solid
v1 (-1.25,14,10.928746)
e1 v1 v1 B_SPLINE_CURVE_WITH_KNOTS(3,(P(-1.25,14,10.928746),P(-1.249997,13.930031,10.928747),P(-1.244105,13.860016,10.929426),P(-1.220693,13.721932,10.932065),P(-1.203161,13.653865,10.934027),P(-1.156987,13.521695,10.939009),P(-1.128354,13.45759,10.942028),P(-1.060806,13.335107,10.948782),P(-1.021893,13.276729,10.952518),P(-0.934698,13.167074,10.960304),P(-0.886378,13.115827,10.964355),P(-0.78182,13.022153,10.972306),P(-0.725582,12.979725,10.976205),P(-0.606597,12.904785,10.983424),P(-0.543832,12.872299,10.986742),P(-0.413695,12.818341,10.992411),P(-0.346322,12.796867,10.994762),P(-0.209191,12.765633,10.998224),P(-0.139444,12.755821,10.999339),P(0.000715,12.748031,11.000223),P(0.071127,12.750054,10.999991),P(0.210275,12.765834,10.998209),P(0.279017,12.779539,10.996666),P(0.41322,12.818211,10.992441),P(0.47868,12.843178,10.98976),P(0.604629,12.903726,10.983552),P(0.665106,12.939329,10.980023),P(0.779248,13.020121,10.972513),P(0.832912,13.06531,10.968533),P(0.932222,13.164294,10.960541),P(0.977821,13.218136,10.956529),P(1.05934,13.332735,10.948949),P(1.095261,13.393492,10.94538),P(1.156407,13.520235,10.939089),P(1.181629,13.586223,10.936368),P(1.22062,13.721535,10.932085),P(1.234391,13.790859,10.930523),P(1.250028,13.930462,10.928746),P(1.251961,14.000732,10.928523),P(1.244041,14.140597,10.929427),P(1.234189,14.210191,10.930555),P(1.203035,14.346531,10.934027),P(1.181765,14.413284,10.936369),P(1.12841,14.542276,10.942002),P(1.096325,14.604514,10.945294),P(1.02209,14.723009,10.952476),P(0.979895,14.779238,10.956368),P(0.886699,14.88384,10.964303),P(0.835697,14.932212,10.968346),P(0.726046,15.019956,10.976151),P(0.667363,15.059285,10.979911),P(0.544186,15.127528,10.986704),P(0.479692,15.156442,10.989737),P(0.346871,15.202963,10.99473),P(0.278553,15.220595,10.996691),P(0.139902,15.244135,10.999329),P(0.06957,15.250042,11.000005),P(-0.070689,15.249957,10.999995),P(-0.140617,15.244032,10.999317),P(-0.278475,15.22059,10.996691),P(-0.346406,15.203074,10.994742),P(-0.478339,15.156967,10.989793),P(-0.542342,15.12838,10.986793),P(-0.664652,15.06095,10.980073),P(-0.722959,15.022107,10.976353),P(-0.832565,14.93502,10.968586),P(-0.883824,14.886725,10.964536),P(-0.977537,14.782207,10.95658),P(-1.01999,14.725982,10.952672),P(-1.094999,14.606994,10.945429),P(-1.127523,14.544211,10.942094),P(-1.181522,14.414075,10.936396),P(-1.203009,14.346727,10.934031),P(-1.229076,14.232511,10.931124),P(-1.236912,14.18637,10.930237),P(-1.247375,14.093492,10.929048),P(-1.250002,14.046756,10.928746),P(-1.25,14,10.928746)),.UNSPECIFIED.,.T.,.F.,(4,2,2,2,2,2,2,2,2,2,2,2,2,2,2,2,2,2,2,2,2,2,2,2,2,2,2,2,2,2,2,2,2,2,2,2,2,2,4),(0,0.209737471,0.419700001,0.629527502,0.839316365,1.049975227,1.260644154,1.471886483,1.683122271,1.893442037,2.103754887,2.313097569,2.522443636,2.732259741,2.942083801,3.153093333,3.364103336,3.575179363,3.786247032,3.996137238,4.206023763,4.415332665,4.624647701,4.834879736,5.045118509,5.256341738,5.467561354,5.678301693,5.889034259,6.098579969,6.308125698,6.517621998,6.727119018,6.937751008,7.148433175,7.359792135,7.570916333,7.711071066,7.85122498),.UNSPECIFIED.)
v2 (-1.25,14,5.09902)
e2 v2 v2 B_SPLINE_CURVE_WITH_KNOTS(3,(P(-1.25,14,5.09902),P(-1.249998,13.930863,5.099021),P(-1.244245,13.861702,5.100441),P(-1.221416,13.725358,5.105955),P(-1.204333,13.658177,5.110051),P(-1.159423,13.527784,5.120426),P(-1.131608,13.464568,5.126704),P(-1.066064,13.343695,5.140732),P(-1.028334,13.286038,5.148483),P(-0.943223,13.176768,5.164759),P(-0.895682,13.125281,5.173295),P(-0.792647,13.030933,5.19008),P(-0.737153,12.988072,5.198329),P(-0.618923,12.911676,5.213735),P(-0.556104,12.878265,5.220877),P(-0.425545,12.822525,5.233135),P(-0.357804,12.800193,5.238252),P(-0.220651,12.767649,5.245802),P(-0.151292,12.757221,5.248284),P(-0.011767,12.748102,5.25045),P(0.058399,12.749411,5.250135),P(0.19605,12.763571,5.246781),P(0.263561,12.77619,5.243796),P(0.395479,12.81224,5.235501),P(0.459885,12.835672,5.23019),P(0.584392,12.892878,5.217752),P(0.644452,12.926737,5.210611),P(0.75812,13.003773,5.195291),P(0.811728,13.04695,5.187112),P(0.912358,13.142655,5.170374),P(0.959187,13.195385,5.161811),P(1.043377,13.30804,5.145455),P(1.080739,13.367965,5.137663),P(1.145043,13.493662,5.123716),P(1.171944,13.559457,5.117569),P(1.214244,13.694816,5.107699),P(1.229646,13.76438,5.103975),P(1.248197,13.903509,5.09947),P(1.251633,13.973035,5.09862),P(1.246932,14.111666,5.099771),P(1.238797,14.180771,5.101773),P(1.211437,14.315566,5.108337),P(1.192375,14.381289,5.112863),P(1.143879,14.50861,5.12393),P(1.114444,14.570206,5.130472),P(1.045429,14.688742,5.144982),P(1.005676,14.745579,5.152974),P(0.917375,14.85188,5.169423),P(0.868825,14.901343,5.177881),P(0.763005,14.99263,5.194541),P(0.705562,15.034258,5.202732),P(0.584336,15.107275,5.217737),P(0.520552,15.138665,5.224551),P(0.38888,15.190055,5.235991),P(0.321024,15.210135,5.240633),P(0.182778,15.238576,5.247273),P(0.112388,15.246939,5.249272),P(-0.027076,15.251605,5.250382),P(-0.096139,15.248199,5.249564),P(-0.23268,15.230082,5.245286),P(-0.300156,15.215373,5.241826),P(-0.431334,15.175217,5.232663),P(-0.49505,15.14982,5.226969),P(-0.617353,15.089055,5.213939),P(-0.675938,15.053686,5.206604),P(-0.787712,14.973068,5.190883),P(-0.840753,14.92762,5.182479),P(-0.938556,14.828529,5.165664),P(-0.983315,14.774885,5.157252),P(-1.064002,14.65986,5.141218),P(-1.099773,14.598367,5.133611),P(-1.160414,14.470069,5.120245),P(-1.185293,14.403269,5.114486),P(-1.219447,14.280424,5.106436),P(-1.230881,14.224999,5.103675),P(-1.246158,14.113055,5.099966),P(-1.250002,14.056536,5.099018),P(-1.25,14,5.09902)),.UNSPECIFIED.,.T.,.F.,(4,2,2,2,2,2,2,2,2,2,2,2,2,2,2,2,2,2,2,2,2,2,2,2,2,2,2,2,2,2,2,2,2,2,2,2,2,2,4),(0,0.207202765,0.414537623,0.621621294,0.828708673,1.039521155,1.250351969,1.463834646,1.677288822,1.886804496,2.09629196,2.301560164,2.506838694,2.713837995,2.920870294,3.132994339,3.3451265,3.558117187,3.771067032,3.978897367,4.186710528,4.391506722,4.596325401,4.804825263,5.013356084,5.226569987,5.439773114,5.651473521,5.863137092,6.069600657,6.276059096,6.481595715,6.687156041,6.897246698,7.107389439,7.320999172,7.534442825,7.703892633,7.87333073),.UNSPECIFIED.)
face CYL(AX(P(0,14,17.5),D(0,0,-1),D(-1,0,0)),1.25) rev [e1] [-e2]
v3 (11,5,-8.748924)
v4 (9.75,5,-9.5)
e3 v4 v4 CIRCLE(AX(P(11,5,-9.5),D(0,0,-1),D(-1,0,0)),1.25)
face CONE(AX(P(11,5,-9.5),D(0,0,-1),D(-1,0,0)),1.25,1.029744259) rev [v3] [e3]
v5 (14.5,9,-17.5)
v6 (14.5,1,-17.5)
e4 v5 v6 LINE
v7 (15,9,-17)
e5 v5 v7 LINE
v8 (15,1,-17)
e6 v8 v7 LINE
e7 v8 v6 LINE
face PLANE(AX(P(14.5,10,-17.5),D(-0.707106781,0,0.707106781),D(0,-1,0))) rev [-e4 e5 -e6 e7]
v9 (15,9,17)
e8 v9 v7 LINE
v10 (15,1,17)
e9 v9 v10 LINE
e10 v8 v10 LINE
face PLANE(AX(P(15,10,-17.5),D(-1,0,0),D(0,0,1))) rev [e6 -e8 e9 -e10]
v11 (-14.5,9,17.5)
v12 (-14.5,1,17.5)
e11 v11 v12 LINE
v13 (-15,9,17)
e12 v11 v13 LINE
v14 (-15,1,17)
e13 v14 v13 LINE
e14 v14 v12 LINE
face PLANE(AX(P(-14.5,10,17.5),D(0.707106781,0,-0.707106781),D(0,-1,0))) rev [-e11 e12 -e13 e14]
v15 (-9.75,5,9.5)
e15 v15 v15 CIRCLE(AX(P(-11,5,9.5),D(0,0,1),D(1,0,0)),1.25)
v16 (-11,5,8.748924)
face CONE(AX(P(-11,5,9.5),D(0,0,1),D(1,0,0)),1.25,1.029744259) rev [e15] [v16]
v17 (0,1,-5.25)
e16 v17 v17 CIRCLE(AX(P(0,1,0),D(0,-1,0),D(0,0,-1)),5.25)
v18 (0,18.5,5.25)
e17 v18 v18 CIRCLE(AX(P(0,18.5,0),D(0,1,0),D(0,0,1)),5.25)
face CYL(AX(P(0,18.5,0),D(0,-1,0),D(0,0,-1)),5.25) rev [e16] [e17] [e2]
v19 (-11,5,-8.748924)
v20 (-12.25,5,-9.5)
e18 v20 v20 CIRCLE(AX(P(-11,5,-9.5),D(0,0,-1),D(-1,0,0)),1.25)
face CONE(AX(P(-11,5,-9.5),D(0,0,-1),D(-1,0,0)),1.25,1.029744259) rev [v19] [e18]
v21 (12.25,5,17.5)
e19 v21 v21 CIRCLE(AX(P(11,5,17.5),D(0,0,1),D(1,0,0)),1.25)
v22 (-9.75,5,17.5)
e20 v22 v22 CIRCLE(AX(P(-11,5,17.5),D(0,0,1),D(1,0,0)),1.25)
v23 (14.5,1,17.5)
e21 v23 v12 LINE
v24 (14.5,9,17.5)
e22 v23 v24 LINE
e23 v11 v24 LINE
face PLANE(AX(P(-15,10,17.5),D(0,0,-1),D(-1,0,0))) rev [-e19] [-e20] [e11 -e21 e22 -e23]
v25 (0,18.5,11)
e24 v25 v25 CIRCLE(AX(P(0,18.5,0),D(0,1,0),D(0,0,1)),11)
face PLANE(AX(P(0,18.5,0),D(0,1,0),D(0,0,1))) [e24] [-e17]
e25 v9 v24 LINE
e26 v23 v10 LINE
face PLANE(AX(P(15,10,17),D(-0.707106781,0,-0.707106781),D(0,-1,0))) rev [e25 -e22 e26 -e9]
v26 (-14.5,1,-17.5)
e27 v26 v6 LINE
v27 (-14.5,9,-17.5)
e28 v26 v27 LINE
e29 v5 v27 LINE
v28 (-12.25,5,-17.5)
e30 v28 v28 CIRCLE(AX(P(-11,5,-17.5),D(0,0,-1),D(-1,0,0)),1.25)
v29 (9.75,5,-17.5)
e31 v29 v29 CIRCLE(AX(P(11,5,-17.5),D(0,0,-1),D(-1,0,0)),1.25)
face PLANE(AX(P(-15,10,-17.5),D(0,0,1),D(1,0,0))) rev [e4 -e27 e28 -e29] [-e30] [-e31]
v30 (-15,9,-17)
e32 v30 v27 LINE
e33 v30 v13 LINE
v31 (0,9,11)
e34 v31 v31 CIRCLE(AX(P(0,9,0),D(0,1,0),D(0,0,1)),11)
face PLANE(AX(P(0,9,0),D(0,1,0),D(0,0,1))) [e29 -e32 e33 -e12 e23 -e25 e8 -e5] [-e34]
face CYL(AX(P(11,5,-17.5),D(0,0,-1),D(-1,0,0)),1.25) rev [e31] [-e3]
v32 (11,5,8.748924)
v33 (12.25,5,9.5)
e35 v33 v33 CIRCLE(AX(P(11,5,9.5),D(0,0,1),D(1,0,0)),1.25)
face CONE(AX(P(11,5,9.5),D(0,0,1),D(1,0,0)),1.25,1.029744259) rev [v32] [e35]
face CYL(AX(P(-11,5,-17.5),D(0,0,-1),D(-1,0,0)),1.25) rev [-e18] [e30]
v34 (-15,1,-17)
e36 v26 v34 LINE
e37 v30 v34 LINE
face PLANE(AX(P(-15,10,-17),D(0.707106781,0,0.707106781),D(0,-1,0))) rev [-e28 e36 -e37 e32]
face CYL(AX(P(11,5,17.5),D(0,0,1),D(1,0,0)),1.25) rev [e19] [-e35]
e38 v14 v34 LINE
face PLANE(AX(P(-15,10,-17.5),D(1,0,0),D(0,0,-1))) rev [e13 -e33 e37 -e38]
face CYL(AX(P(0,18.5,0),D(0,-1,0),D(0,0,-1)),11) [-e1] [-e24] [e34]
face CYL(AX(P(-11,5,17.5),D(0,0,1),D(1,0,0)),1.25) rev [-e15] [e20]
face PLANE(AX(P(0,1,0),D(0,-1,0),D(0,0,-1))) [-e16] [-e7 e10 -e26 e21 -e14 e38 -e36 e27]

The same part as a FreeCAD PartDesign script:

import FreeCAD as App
import Part
import Sketcher
from FreeCAD import Vector
Q = App.Units.Quantity


def edges_at(feature, points):
    """Names of the edges that pass closest to the given points."""
    edges = feature.Shape.Edges
    near = lambda p: min(range(len(edges)), key=lambda i: edges[i].distToShape(Part.Vertex(*p))[0])
    return sorted({f"Edge{near(p) + 1}" for p in points})


def add_polygon(sketch, points):
    """Adds a closed chain of lines whose ends are joined by coincident constraints."""
    first, n = sketch.GeometryCount, len(points)
    for a, b in zip(points, points[1:] + points[:1]):
        sketch.addGeometry(Part.LineSegment(App.Vector(*a, 0), App.Vector(*b, 0)), False)
    for i in range(n):
        sketch.addConstraint(Sketcher.Constraint("Coincident", first + i, 2, first + (i + 1) % n, 1))

doc = App.newDocument("Part")
body = doc.addObject("PartDesign::Body", "Body")

# Sketch on XZ plane
sketch1 = body.newObject("Sketcher::SketchObject", "Sketch")
sketch1.AttachmentSupport = (doc.getObject("XZ_Plane"), [""])
sketch1.MapMode = "FlatFace"
add_polygon(sketch1, [(-15, -18), (-15, 18), (15, 18), (15, -18)])  # lines 0-3
sketch1.addConstraint(Sketcher.Constraint("Vertical", 0))
sketch1.addConstraint(Sketcher.Constraint("Horizontal", 1))
sketch1.addConstraint(Sketcher.Constraint("Vertical", 2))
sketch1.addConstraint(Sketcher.Constraint("Horizontal", 3))
sketch1.addConstraint(Sketcher.Constraint("Symmetric", 0, 2, 2, 2, -1, 1))
sketch1.addConstraint(Sketcher.Constraint("DistanceX", 1, 1, 1, 2, 30.0))
sketch1.addConstraint(Sketcher.Constraint("DistanceY", 0, 1, 0, 2, 35.0))
pad1 = body.newObject("PartDesign::Pad", "Pad")
pad1.Profile = sketch1
pad1.Length = 10
pad1.Reversed = True

# Sketch on XZ plane
sketch2 = body.newObject("Sketcher::SketchObject", "Sketch001")
sketch2.AttachmentSupport = (doc.getObject("XZ_Plane"), [""])
sketch2.MapMode = "FlatFace"
sketch2.AttachmentOffset = App.Placement(Vector(0, 0, -10), App.Rotation())
sketch2.addGeometry(Part.Circle(Vector(0, 0, 0), Vector(0, 0, 1), 11), False)
sketch2.addGeometry(Part.Circle(Vector(0, 0, 0), Vector(0, 0, 1), 5), False)
sketch2.addConstraint(Sketcher.Constraint("Coincident", 0, 3, -1, 1))
sketch2.addConstraint(Sketcher.Constraint("Coincident", 1, 3, -1, 1))
sketch2.addConstraint(Sketcher.Constraint("Diameter", 0, 22.0))
sketch2.addConstraint(Sketcher.Constraint("Diameter", 1, 10.5))
pad2 = body.newObject("PartDesign::Pad", "Pad001")
pad2.Profile = sketch2
pad2.Length = 8.5
pad2.Reversed = True
doc.recompute()

chamfer = body.newObject("PartDesign::Chamfer", "Chamfer")
chamfer.Base = (pad2, edges_at(pad2, [
    (15, 5, 17.5),
    (-15, 5, 17.5),
    (-15, 5, -17.5),
    (15, 5, -17.5),
]))
chamfer.Size = 0.5

# Sketch on XZ plane
sketch3 = body.newObject("Sketcher::SketchObject", "Sketch002")
sketch3.AttachmentSupport = (doc.getObject("XZ_Plane"), [""])
sketch3.MapMode = "FlatFace"
sketch3.AttachmentOffset = App.Placement(Vector(0, 0, -18.5), App.Rotation())
sketch3.addGeometry(Part.Circle(Vector(0, 0, 0), Vector(0, 0, 1), 5), False)
sketch3.addConstraint(Sketcher.Constraint("Coincident", 0, 3, -1, 1))
sketch3.addConstraint(Sketcher.Constraint("Diameter", 0, 10.5))
pocket1 = body.newObject("PartDesign::Pocket", "Pocket")
pocket1.Profile = sketch3
pocket1.Type = "ThroughAll"
pocket1.Reversed = True

# Sketch on XZ plane
sketch4 = body.newObject("Sketcher::SketchObject", "Sketch003")
sketch4.AttachmentSupport = (doc.getObject("XZ_Plane"), [""])
sketch4.MapMode = "FlatFace"
add_polygon(sketch4, [(-16, 18), (-16, -18), (16, -18), (16, 18)])  # lines 0-3
sketch4.addConstraint(Sketcher.Constraint("Vertical", 0))
sketch4.addConstraint(Sketcher.Constraint("Horizontal", 1))
sketch4.addConstraint(Sketcher.Constraint("Vertical", 2))
sketch4.addConstraint(Sketcher.Constraint("Horizontal", 3))
sketch4.addConstraint(Sketcher.Constraint("Symmetric", 0, 2, 2, 2, -1, 1))
sketch4.addConstraint(Sketcher.Constraint("DistanceX", 1, 1, 1, 2, 31.194114))
sketch4.addConstraint(Sketcher.Constraint("DistanceY", 0, 2, 0, 1, 36.870984))
pocket2 = body.newObject("PartDesign::Pocket", "Pocket001")
pocket2.Profile = sketch4
pocket2.Length = 1

# Sketch on XZ plane
sketch5 = body.newObject("Sketcher::SketchObject", "Sketch004")
sketch5.AttachmentSupport = (doc.getObject("XZ_Plane"), [""])
sketch5.MapMode = "FlatFace"
sketch5.AttachmentOffset = App.Placement(Vector(0, 0, -9), App.Rotation())
add_polygon(sketch5, [(-17, -19), (-17, 19), (17, 19), (17, -19)])  # lines 0-3
sketch5.addGeometry(Part.Circle(Vector(0, 0, 0), Vector(0, 0, 1), 11), False)  # 4
sketch5.addConstraint(Sketcher.Constraint("Vertical", 0))
sketch5.addConstraint(Sketcher.Constraint("Horizontal", 1))
sketch5.addConstraint(Sketcher.Constraint("Vertical", 2))
sketch5.addConstraint(Sketcher.Constraint("Horizontal", 3))
sketch5.addConstraint(Sketcher.Constraint("Coincident", 4, 3, -1, 1))
sketch5.addConstraint(Sketcher.Constraint("Symmetric", 0, 2, 2, 2, -1, 1))
sketch5.addConstraint(Sketcher.Constraint("Diameter", 4, 22.0))
sketch5.addConstraint(Sketcher.Constraint("DistanceX", 1, 1, 1, 2, 33.487799))
sketch5.addConstraint(Sketcher.Constraint("DistanceY", 0, 1, 0, 2, 37.788458))
pocket3 = body.newObject("PartDesign::Pocket", "Pocket002")
pocket3.Profile = sketch5
pocket3.Length = 1

# Sketch on YZ plane
sketch6 = body.newObject("Sketcher::SketchObject", "Sketch005")
sketch6.AttachmentSupport = (doc.getObject("YZ_Plane"), [""])
sketch6.MapMode = "FlatFace"
sketch6.AttachmentOffset = App.Placement(Vector(0, 0, -11), App.Rotation())
add_polygon(sketch6, [(5, 8.7), (5, 17.5), (3.8, 17.5), (3.8, 9.5)])  # lines 0-3
sketch6.addGeometry(Part.LineSegment(Vector(5, 17.5, 0), Vector(5, 8.7, 0)), True)  # axis
sketch6.addConstraint(Sketcher.Constraint("Vertical", 0))
sketch6.addConstraint(Sketcher.Constraint("Horizontal", 1))
sketch6.addConstraint(Sketcher.Constraint("Vertical", 2))
sketch6.addConstraint(Sketcher.Constraint("Vertical", 4))
sketch6.addConstraint(Sketcher.Constraint("Coincident", 4, 1, 0, 2))
sketch6.addConstraint(Sketcher.Constraint("Equal", 0, 4))
sketch6.addConstraint(Sketcher.Constraint("DistanceY", 2, 2, 2, 1, 8.0))
sketch6.addConstraint(Sketcher.Constraint("Angle", 3, Q("-31 deg")))
sketch6.addConstraint(Sketcher.Constraint("DistanceX", -1, 1, 0, 2, 5.0))
sketch6.addConstraint(Sketcher.Constraint("DistanceX", 1, 2, 1, 1, 1.25))
sketch6.addConstraint(Sketcher.Constraint("DistanceY", -1, 1, 0, 2, 17.5))
groove = body.newObject("PartDesign::Groove", "Groove")
groove.Profile = sketch6
groove.ReferenceAxis = (sketch6, ["Axis0"])
groove.Angle = 360
doc.recompute()

linearpattern = body.newObject("PartDesign::LinearPattern", "LinearPattern")
linearpattern.Originals = [groove]
linearpattern.Direction = (doc.getObject("X_Axis"), [""])
linearpattern.Mode = "offset"
linearpattern.Offset = 22
linearpattern.Occurrences = 2
body.Tip = linearpattern
doc.recompute()

mirrored = body.newObject("PartDesign::Mirrored", "Mirrored")
mirrored.Originals = [groove]
mirrored.MirrorPlane = (doc.getObject("XY_Plane"), [""])
body.Tip = mirrored

# Sketch on YZ plane
sketch7 = body.newObject("Sketcher::SketchObject", "Sketch006")
sketch7.AttachmentSupport = (doc.getObject("YZ_Plane"), [""])
sketch7.MapMode = "FlatFace"
sketch7.AttachmentOffset = App.Placement(Vector(0, 0, 11), App.Rotation())
add_polygon(sketch7, [(5, -17.5), (5, -8.7), (3.8, -9.5), (3.8, -17.5)])  # lines 0-3
sketch7.addGeometry(Part.LineSegment(Vector(5, -8.7, 0), Vector(5, -17.5, 0)), True)  # axis
sketch7.addConstraint(Sketcher.Constraint("Vertical", 0))
sketch7.addConstraint(Sketcher.Constraint("Vertical", 2))
sketch7.addConstraint(Sketcher.Constraint("Horizontal", 3))
sketch7.addConstraint(Sketcher.Constraint("Vertical", 4))
sketch7.addConstraint(Sketcher.Constraint("Coincident", 4, 1, 0, 2))
sketch7.addConstraint(Sketcher.Constraint("Horizontal", 2, 2, 4, 2))
sketch7.addConstraint(Sketcher.Constraint("DistanceY", 2, 2, 2, 1, 8.0))
sketch7.addConstraint(Sketcher.Constraint("Angle", 1, Q("-149 deg")))
sketch7.addConstraint(Sketcher.Constraint("DistanceX", -1, 1, 0, 2, 5.0))
sketch7.addConstraint(Sketcher.Constraint("DistanceX", 3, 1, 3, 2, 1.25))
sketch7.addConstraint(Sketcher.Constraint("DistanceY", 1, 2, -1, 1, 9.5))
groove2 = body.newObject("PartDesign::Groove", "Groove001")
groove2.Profile = sketch7
groove2.ReferenceAxis = (sketch7, ["Axis0"])
groove2.Angle = 360

# Sketch on XY plane
sketch8 = body.newObject("Sketcher::SketchObject", "Sketch007")
sketch8.AttachmentSupport = (doc.getObject("XY_Plane"), [""])
sketch8.MapMode = "FlatFace"
sketch8.addGeometry(Part.Circle(Vector(0, 14, 0), Vector(0, 0, 1), 1.2), False)
sketch8.addConstraint(Sketcher.Constraint("PointOnObject", 0, 3, -2))
sketch8.addConstraint(Sketcher.Constraint("Diameter", 0, 2.5))
sketch8.addConstraint(Sketcher.Constraint("DistanceY", -1, 1, 0, 3, 14.0))
pocket4 = body.newObject("PartDesign::Pocket", "Pocket003")
pocket4.Profile = sketch8
pocket4.Type = "ThroughAll"
pocket4.Reversed = True

doc.recompute()
